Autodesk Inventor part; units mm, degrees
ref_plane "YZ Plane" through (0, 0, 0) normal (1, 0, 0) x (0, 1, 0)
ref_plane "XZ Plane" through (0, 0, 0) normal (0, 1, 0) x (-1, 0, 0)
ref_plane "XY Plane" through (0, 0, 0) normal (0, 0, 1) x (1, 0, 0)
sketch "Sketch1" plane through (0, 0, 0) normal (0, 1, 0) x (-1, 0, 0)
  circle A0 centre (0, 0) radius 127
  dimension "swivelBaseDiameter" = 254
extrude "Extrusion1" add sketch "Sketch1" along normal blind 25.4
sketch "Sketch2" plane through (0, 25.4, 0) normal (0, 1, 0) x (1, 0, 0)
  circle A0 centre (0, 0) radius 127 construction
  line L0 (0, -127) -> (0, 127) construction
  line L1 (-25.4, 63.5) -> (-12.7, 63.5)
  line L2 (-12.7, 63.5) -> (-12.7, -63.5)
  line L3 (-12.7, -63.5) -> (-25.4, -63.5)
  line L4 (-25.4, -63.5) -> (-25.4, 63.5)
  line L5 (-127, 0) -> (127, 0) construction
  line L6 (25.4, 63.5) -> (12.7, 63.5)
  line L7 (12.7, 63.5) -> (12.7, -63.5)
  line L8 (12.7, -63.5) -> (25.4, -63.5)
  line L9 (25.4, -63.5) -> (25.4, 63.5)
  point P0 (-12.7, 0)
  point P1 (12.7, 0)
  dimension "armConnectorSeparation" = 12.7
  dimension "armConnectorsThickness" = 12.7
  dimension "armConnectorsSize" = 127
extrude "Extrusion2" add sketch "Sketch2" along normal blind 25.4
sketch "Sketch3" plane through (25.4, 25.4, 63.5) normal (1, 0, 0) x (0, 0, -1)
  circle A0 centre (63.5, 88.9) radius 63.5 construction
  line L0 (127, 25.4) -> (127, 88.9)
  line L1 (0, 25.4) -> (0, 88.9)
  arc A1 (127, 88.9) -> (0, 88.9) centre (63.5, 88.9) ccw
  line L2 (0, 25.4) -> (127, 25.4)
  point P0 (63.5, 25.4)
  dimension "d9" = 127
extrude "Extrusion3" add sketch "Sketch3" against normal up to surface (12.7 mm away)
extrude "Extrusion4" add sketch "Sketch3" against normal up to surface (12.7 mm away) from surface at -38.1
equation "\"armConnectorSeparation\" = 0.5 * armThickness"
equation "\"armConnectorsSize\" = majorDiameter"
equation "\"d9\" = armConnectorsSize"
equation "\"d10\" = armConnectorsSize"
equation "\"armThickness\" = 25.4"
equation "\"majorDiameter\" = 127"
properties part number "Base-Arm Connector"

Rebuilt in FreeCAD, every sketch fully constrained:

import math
import FreeCAD as App
import Part
import Sketcher
Q = App.Units.Quantity

doc = App.newDocument("Part")
params = doc.addObject("Spreadsheet::Sheet", "Params")
for row, (alias, value) in enumerate([
    ("sketch1_diameter", "10 in"),
    ("pad1_length", "1 in"),
    ("sketch2_height", "5 in"),
    ("sketch2_width", "0.5 in"),
    ("pad2_length", "1 in"),
    ("sketch3_radius", "2.5 in"),
    ("sketch3_width", "2.5 in"),
    ("pad3_length", "0.5 in"),
    ("sketch4_radius", "2.5 in"),
    ("sketch4_width", "2.5 in"),
    ("pad4_length", "0.5 in"),
], start=1):
    params.set(f"A{row}", alias)
    params.set(f"B{row}", "=" + value)
    params.setAlias(f"B{row}", alias)

body = doc.addObject("PartDesign::Body", "Body")

# Sketch on XZ plane
sketch1 = body.newObject("Sketcher::SketchObject", "Sketch")
sketch1.AttachmentSupport = (doc.getObject("XZ_Plane"), [""])
sketch1.MapMode = "FlatFace"
sketch1.addGeometry(Part.Circle(App.Vector(0, 0, 0), App.Vector(0, 0, 1), 127), False)
sketch1.addConstraint([
    Sketcher.Constraint("Coincident", 0, 3, -1, 1),
    Sketcher.Constraint("Diameter", 0, Q("10 in")),
])
sketch1.setExpression("Constraints[1]", "Params.sketch1_diameter")
pad1 = body.newObject("PartDesign::Pad", "Pad")
pad1.Profile = sketch1
pad1.setExpression("Length", "Params.pad1_length")
pad1.Reversed = True

# Sketch on XZ plane
sketch2 = body.newObject("Sketcher::SketchObject", "Sketch001")
sketch2.AttachmentSupport = (doc.getObject("XZ_Plane"), [""])
sketch2.MapMode = "FlatFace"
sketch2.AttachmentOffset = App.Placement(App.Vector(0, 0, -1 * 25.4), App.Rotation())
sketch2.addGeometry([
    Part.LineSegment(App.Vector(-13, -64, 0), App.Vector(-25, -64, 0)),  # 0
    Part.LineSegment(App.Vector(-25, -64, 0), App.Vector(-25, 64, 0)),  # 1
    Part.LineSegment(App.Vector(-25, 64, 0), App.Vector(-13, 64, 0)),  # 2
    Part.LineSegment(App.Vector(-13, 64, 0), App.Vector(-13, -64, 0)),  # 3
    Part.LineSegment(App.Vector(25, 64, 0), App.Vector(25, -64, 0)),  # 4
    Part.LineSegment(App.Vector(25, -64, 0), App.Vector(13, -64, 0)),  # 5
    Part.LineSegment(App.Vector(13, -64, 0), App.Vector(13, 64, 0)),  # 6
    Part.LineSegment(App.Vector(13, 64, 0), App.Vector(25, 64, 0)),  # 7
], False)
sketch2.addConstraint([
    Sketcher.Constraint("Coincident", 0, 2, 1, 1),
    Sketcher.Constraint("Coincident", 1, 2, 2, 1),
    Sketcher.Constraint("Coincident", 2, 2, 3, 1),
    Sketcher.Constraint("Coincident", 3, 2, 0, 1),
    Sketcher.Constraint("Coincident", 4, 2, 5, 1),
    Sketcher.Constraint("Coincident", 5, 2, 6, 1),
    Sketcher.Constraint("Coincident", 6, 2, 7, 1),
    Sketcher.Constraint("Coincident", 7, 2, 4, 1),
    Sketcher.Constraint("Horizontal", 0),
    Sketcher.Constraint("Vertical", 1),
    Sketcher.Constraint("Horizontal", 2),
    Sketcher.Constraint("Vertical", 3),
    Sketcher.Constraint("Vertical", 4),
    Sketcher.Constraint("Horizontal", 5),
    Sketcher.Constraint("Vertical", 6),
    Sketcher.Constraint("Horizontal", 7),
    Sketcher.Constraint("Symmetric", 1, 2, 4, 2, -1, 1),
    Sketcher.Constraint("Symmetric", 3, 2, 6, 2, -1, 1),
    Sketcher.Constraint("Horizontal", 3, 2, 4, 2),
    Sketcher.Constraint("DistanceY", 1, 1, 1, 2, Q("5 in")),
    Sketcher.Constraint("DistanceX", 0, 2, 0, 1, Q("0.5 in")),
    Sketcher.Constraint("DistanceX", 2, 2, -1, 1, Q("0.5 in")),
])
sketch2.setExpression("Constraints[19]", "Params.sketch2_height")
sketch2.setExpression("Constraints[20]", "Params.sketch2_width")
pad2 = body.newObject("PartDesign::Pad", "Pad001")
pad2.Profile = sketch2
pad2.setExpression("Length", "Params.pad2_length")
pad2.Reversed = True

# Sketch on YZ plane
sketch3 = body.newObject("Sketcher::SketchObject", "Sketch002")
sketch3.AttachmentSupport = (doc.getObject("YZ_Plane"), [""])
sketch3.MapMode = "FlatFace"
sketch3.AttachmentOffset = App.Placement(App.Vector(0, 0, 1 * 25.4), App.Rotation())
sketch3.addGeometry([
    Part.LineSegment(App.Vector(51, 64, 0), App.Vector(51, -64, 0)),
    Part.LineSegment(App.Vector(51, -64, 0), App.Vector(114, -64, 0)),
    Part.ArcOfCircle(Part.Circle(App.Vector(114, 0, 0), App.Vector(0, 0, 1), 64), math.radians(-90), math.radians(90)),
    Part.LineSegment(App.Vector(114, 64, 0), App.Vector(51, 64, 0)),
], False)
sketch3.addConstraint([
    Sketcher.Constraint("Coincident", 0, 2, 1, 1),
    Sketcher.Constraint("Tangent", 1, 2, 2, 1),
    Sketcher.Constraint("Tangent", 2, 2, 3, 1),
    Sketcher.Constraint("Coincident", 3, 2, 0, 1),
    Sketcher.Constraint("Vertical", 0),
    Sketcher.Constraint("Horizontal", 1),
    Sketcher.Constraint("Horizontal", 3),
    Sketcher.Constraint("PointOnObject", 2, 3, -1),
    Sketcher.Constraint("Radius", 2, Q("2.5 in")),
    Sketcher.Constraint("DistanceX", 1, 1, 1, 2, Q("2.5 in")),
    Sketcher.Constraint("DistanceX", -1, 1, 0, 2, Q("2 in")),
])
sketch3.setExpression("Constraints[8]", "Params.sketch3_radius")
sketch3.setExpression("Constraints[9]", "Params.sketch3_width")
pad3 = body.newObject("PartDesign::Pad", "Pad002")
pad3.Profile = sketch3
pad3.setExpression("Length", "Params.pad3_length")
pad3.Reversed = True

# Sketch on YZ plane
sketch4 = body.newObject("Sketcher::SketchObject", "Sketch003")
sketch4.AttachmentSupport = (doc.getObject("YZ_Plane"), [""])
sketch4.MapMode = "FlatFace"
sketch4.AttachmentOffset = App.Placement(App.Vector(0, 0, -0.5 * 25.4), App.Rotation())
sketch4.addGeometry([
    Part.LineSegment(App.Vector(51, 64, 0), App.Vector(51, -64, 0)),
    Part.LineSegment(App.Vector(51, -64, 0), App.Vector(114, -64, 0)),
    Part.ArcOfCircle(Part.Circle(App.Vector(114, 0, 0), App.Vector(0, 0, 1), 64), math.radians(-90), math.radians(90)),
    Part.LineSegment(App.Vector(114, 64, 0), App.Vector(51, 64, 0)),
], False)
sketch4.addConstraint([
    Sketcher.Constraint("Coincident", 0, 2, 1, 1),
    Sketcher.Constraint("Tangent", 1, 2, 2, 1),
    Sketcher.Constraint("Tangent", 2, 2, 3, 1),
    Sketcher.Constraint("Coincident", 3, 2, 0, 1),
    Sketcher.Constraint("Vertical", 0),
    Sketcher.Constraint("Horizontal", 1),
    Sketcher.Constraint("Horizontal", 3),
    Sketcher.Constraint("PointOnObject", 2, 3, -1),
    Sketcher.Constraint("Radius", 2, Q("2.5 in")),
    Sketcher.Constraint("DistanceX", 1, 1, 1, 2, Q("2.5 in")),
    Sketcher.Constraint("DistanceX", -1, 1, 0, 2, Q("2 in")),
])
sketch4.setExpression("Constraints[8]", "Params.sketch4_radius")
sketch4.setExpression("Constraints[9]", "Params.sketch4_width")
pad4 = body.newObject("PartDesign::Pad", "Pad003")
pad4.Profile = sketch4
pad4.setExpression("Length", "Params.pad4_length")
pad4.Reversed = True

doc.recompute()
